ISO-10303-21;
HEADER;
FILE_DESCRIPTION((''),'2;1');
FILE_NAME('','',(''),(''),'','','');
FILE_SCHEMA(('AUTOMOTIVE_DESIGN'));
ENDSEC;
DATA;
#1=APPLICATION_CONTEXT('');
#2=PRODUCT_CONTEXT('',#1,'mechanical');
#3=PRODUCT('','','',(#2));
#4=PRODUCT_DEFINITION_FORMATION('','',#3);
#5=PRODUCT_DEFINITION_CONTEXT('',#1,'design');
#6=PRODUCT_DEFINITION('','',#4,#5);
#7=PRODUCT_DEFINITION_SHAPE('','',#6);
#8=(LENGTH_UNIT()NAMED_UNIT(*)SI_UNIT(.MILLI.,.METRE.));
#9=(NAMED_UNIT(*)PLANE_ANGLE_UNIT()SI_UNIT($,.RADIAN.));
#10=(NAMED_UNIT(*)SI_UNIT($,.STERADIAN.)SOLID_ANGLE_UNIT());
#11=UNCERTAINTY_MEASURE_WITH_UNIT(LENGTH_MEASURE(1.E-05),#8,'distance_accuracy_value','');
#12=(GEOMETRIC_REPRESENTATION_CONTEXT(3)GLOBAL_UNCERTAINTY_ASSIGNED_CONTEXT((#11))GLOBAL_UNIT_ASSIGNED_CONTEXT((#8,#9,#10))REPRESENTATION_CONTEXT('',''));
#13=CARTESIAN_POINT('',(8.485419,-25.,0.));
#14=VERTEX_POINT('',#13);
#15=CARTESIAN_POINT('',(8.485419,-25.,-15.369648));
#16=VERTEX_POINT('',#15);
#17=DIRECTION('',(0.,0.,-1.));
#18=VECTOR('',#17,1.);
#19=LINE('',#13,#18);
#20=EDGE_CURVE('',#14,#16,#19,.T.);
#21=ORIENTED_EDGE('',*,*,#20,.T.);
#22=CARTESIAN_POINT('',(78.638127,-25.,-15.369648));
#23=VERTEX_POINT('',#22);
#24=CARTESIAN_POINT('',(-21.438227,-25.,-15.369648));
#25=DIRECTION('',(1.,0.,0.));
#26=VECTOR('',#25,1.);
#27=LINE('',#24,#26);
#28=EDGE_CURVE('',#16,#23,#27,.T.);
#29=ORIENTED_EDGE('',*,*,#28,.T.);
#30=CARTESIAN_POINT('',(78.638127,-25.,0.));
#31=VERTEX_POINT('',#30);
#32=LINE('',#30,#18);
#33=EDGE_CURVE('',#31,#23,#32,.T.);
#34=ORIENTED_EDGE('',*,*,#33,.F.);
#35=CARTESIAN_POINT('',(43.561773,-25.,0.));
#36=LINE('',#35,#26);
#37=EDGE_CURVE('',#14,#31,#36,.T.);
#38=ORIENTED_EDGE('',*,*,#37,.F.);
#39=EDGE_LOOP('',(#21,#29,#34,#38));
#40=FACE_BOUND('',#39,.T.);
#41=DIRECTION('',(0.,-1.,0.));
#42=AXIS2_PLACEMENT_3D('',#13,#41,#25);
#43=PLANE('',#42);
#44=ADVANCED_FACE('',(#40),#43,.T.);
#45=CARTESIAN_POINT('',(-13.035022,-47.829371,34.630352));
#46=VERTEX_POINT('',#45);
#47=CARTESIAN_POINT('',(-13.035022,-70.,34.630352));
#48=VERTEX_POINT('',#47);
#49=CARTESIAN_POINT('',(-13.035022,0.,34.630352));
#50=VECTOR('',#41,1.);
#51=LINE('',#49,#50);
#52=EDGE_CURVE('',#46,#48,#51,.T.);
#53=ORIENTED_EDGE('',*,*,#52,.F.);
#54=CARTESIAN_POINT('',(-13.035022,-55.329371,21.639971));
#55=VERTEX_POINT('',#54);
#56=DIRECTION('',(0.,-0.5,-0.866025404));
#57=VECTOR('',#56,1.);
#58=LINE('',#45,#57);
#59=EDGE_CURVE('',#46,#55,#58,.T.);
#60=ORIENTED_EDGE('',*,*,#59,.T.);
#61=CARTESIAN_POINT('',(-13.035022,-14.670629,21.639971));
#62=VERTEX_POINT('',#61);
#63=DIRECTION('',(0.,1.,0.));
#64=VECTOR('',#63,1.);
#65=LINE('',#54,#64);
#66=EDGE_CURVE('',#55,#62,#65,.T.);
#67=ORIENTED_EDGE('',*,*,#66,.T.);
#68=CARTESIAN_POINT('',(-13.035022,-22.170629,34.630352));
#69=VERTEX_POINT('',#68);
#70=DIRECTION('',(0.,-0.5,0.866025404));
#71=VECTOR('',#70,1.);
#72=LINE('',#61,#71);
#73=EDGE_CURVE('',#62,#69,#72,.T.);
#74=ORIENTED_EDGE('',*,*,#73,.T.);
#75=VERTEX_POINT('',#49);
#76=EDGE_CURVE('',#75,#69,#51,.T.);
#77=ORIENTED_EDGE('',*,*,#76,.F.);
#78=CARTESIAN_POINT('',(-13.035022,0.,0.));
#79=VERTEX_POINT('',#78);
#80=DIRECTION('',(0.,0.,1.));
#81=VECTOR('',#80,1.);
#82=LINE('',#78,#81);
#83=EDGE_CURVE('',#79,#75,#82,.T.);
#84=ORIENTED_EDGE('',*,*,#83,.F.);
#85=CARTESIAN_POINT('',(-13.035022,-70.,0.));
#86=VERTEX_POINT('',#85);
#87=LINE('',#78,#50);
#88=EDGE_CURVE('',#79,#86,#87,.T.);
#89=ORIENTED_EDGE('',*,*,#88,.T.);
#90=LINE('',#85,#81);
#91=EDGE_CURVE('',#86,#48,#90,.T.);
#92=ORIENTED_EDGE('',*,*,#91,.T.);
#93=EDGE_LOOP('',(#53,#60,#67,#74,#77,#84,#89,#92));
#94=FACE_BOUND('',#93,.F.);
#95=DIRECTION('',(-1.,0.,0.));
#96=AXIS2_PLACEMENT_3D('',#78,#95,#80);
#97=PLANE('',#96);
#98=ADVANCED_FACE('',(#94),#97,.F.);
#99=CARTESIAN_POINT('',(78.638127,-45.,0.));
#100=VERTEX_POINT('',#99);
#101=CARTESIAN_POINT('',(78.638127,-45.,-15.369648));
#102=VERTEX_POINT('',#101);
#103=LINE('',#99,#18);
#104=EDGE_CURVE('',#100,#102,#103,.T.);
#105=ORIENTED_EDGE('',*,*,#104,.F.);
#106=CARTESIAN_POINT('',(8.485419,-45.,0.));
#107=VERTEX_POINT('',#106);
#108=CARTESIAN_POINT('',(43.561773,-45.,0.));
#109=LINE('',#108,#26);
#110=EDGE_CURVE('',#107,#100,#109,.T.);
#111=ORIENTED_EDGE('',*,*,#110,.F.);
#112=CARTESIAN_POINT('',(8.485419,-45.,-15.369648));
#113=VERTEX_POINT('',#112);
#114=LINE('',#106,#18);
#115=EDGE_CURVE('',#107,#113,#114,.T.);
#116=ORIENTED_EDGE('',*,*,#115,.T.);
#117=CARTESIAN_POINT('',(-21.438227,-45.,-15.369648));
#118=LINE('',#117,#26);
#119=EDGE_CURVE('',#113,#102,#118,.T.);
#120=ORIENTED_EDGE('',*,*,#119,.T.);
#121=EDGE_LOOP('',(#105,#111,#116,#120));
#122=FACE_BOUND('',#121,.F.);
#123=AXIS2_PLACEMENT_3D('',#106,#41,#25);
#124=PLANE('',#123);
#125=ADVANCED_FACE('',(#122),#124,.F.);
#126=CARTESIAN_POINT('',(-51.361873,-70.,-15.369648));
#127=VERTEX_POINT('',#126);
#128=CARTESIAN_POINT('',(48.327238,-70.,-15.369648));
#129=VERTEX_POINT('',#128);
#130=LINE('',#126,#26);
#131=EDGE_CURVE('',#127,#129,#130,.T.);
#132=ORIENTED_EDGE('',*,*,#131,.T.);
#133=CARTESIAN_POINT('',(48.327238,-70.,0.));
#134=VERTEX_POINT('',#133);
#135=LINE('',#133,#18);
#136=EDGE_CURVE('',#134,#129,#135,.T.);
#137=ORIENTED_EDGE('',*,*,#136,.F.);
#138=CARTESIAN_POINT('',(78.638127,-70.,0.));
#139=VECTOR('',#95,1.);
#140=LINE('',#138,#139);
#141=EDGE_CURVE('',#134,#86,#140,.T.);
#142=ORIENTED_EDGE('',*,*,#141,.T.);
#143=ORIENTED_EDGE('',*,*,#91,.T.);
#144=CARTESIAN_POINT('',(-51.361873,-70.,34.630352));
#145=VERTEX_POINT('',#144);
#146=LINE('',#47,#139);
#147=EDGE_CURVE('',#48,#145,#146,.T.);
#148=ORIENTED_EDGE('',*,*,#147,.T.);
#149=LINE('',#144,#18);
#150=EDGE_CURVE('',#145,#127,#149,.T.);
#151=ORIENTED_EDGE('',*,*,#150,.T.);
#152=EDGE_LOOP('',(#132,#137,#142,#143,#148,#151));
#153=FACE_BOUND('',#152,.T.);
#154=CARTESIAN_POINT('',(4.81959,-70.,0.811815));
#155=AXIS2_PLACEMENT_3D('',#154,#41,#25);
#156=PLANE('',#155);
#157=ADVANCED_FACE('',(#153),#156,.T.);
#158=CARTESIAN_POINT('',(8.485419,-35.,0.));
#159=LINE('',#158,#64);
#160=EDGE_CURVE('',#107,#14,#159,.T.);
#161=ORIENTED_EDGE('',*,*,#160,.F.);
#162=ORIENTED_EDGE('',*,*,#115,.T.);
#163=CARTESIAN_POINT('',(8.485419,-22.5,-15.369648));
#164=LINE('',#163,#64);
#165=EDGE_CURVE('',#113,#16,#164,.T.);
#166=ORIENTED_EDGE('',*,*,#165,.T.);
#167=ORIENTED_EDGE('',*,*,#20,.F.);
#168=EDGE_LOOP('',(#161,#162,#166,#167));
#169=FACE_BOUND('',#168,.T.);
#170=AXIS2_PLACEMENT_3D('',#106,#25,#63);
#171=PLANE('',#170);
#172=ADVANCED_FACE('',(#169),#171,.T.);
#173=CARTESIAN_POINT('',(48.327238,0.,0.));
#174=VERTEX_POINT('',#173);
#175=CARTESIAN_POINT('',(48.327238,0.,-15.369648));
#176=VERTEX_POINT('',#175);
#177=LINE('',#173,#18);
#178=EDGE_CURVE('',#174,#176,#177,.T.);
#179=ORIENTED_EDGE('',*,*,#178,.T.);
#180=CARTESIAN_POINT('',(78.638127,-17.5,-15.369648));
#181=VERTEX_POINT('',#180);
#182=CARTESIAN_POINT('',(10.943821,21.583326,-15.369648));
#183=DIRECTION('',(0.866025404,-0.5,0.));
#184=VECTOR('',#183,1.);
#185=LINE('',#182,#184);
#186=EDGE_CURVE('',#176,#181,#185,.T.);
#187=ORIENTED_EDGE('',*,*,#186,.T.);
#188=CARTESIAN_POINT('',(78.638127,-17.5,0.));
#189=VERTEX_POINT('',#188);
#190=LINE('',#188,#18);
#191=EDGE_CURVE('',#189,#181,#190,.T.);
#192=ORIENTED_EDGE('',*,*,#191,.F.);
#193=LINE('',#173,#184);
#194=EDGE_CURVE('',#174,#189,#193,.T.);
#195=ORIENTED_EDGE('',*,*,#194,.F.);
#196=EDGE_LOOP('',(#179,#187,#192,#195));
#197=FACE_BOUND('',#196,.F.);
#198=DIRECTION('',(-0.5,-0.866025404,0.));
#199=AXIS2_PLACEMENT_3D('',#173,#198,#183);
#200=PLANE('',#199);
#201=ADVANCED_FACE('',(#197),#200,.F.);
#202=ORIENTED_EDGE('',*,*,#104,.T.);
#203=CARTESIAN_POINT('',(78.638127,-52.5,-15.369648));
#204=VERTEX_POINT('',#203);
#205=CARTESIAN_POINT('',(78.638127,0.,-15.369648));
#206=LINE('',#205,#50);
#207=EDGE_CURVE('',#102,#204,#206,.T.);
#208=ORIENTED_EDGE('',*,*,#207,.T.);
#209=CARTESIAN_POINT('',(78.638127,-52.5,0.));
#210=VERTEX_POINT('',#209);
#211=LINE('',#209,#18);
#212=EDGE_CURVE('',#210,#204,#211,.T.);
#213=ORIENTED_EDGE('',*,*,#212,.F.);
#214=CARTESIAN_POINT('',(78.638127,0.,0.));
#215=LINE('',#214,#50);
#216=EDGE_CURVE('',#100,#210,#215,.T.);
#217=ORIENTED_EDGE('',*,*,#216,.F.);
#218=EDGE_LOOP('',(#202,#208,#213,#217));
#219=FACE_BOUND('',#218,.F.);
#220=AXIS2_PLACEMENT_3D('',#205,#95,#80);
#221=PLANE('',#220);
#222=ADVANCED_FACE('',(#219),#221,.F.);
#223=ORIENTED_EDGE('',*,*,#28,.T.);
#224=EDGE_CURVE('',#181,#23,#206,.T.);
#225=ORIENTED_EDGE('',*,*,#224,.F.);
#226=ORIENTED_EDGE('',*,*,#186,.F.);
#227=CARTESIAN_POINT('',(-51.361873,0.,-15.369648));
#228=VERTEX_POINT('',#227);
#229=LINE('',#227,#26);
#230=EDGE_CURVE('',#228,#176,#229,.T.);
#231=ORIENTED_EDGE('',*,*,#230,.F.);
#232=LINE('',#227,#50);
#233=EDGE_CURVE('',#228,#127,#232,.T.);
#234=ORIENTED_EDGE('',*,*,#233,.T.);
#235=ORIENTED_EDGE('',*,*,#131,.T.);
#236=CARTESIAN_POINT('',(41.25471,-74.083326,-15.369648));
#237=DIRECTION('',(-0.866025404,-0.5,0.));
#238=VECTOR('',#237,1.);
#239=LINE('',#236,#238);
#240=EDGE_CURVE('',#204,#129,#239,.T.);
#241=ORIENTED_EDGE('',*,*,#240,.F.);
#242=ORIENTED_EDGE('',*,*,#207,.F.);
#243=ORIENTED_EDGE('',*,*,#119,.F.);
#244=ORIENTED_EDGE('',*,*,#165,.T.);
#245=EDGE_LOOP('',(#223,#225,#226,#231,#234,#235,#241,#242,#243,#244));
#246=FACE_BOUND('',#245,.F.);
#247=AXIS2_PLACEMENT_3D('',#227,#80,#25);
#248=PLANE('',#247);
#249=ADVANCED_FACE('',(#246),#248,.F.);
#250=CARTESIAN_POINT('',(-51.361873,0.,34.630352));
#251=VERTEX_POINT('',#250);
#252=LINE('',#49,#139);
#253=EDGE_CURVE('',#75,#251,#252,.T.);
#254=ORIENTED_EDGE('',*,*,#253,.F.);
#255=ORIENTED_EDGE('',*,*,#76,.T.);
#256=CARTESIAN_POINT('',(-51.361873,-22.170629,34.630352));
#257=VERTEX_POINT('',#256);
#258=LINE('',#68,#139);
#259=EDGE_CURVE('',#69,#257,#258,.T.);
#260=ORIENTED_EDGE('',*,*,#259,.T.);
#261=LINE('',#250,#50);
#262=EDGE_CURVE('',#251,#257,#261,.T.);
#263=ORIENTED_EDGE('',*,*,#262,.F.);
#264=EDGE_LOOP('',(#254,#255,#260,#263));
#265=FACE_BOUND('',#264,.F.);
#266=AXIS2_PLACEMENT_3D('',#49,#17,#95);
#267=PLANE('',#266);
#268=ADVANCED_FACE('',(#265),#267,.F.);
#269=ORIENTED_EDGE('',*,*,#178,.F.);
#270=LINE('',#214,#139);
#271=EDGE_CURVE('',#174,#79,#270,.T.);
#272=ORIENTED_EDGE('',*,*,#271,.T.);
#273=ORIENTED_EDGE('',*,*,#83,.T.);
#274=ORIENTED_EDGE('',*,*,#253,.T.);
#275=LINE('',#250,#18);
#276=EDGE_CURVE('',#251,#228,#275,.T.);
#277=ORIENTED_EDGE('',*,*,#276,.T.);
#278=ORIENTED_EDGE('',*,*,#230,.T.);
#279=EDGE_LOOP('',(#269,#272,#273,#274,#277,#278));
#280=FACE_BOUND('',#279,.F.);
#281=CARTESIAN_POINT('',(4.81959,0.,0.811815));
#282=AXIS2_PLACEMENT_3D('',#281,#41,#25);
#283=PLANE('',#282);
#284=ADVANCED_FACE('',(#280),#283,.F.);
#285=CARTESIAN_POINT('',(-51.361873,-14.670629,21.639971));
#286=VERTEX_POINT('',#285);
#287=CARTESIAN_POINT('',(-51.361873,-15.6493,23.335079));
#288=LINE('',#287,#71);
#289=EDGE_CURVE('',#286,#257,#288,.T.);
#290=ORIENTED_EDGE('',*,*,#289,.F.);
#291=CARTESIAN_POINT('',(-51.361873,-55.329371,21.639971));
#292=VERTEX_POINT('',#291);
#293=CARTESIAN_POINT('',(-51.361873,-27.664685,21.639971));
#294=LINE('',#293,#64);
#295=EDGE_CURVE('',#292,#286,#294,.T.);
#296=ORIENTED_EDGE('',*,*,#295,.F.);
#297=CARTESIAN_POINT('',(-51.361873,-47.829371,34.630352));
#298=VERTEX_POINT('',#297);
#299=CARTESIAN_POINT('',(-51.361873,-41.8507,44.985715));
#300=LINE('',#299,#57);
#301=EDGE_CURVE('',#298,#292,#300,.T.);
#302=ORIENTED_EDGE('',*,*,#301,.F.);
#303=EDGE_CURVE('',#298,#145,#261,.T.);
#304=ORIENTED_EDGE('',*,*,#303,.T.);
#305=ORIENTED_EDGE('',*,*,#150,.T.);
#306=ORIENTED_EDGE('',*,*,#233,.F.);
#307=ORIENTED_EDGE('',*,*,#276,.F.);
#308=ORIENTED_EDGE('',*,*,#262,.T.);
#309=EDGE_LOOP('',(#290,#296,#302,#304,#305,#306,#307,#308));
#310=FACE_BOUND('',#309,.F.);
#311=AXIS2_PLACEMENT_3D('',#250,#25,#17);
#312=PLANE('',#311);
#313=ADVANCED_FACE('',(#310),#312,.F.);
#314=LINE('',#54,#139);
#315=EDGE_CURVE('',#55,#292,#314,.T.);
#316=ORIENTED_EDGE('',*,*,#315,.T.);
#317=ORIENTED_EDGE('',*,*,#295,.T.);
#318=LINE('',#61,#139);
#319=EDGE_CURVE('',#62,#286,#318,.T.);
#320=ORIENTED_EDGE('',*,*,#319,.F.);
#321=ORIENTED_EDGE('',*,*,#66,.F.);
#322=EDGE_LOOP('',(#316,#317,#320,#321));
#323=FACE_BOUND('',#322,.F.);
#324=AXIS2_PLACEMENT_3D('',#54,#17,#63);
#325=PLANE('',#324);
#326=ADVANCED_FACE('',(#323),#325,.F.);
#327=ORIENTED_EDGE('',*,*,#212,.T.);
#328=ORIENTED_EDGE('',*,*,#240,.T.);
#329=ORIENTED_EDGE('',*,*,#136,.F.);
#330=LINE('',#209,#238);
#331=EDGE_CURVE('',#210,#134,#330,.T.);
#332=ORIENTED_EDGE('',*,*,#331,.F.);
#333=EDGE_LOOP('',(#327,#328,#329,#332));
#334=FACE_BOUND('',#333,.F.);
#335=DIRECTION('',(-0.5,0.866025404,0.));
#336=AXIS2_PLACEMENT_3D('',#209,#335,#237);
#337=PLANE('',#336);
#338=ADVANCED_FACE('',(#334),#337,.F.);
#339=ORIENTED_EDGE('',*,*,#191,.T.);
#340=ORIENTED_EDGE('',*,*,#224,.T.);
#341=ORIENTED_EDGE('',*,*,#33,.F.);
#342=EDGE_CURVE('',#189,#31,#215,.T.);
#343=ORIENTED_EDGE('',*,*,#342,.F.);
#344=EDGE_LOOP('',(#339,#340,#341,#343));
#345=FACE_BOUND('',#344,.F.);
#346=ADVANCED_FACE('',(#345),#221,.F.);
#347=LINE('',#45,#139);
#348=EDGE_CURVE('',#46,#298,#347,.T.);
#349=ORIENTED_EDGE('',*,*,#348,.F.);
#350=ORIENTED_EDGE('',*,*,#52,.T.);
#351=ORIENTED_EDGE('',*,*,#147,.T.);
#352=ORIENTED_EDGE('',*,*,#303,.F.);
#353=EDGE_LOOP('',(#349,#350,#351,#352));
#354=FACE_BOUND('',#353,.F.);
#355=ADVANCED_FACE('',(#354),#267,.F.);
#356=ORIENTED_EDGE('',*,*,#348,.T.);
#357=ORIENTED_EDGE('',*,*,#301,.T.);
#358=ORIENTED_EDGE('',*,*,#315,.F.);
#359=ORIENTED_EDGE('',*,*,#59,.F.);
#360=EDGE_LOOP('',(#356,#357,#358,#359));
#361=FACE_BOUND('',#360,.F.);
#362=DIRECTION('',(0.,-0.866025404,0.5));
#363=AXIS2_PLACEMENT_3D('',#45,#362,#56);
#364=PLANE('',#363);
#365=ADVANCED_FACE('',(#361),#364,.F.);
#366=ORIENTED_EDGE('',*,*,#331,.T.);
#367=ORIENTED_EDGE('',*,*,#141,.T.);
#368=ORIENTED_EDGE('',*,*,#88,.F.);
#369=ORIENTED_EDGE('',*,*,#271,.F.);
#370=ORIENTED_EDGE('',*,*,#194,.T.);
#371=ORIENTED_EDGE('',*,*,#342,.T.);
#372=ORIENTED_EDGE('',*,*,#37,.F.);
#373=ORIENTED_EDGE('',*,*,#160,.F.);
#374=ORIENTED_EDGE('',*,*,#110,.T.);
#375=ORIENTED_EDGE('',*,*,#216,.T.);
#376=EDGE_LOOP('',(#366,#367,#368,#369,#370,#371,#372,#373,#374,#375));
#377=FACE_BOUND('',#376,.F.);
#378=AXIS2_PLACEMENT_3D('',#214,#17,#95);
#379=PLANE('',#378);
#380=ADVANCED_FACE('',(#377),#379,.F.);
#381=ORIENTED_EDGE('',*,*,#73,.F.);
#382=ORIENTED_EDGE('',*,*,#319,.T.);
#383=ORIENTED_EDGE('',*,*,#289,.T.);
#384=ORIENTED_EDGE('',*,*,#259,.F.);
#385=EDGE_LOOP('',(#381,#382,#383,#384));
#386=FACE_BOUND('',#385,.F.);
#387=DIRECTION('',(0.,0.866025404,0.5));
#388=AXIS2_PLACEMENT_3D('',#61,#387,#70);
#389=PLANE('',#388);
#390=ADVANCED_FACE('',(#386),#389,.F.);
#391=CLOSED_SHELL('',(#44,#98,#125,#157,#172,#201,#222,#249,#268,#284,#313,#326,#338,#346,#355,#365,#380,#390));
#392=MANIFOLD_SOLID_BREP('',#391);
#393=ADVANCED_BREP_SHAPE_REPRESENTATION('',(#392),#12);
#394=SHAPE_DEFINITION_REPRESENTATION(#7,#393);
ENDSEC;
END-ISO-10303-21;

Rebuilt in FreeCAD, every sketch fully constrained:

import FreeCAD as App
import Part
import Sketcher
Q = App.Units.Quantity

doc = App.newDocument("Part")
params = doc.addObject("Spreadsheet::Sheet", "Params")
for row, (alias, value) in enumerate([
    ("sketch1_width", "130 mm"),
    ("sketch1_height", "50 mm"),
    ("pad1_length", "70 mm"),
    ("sketch2_length", "15 mm"),
    ("sketch3_height", "20 mm"),
    ("sketch4_length", "35 mm"),
], start=1):
    params.set(f"A{row}", alias)
    params.set(f"B{row}", "=" + value)
    params.setAlias(f"B{row}", alias)

body = doc.addObject("PartDesign::Body", "Body")

# Sketch on XZ plane
sketch1 = doc.addObject("Sketcher::SketchObject", "Sketch")
body.addObject(sketch1)
sketch1.AttachmentSupport = (doc.XZ_Plane, [""])
sketch1.MapMode = "FlatFace"
sketch1.addGeometry([
    Part.LineSegment(App.Vector(-13, 35, 0), App.Vector(-51, 35, 0)),  # 0
    Part.LineSegment(App.Vector(-51, 35, 0), App.Vector(-51, -15, 0)),  # 1
    Part.LineSegment(App.Vector(-51, -15, 0), App.Vector(79, -15, 0)),  # 2
    Part.LineSegment(App.Vector(79, -15, 0), App.Vector(79, 0, 0)),  # 3
    Part.LineSegment(App.Vector(79, 0, 0), App.Vector(-13, 0, 0)),  # 4
    Part.LineSegment(App.Vector(-13, 0, 0), App.Vector(-13, 35, 0)),  # 5
], False)
sketch1.addConstraint([
    Sketcher.Constraint("Coincident", 0, 2, 1, 1),
    Sketcher.Constraint("Coincident", 1, 2, 2, 1),
    Sketcher.Constraint("Coincident", 2, 2, 3, 1),
    Sketcher.Constraint("Coincident", 3, 2, 4, 1),
    Sketcher.Constraint("Coincident", 4, 2, 5, 1),
    Sketcher.Constraint("Coincident", 5, 2, 0, 1),
    Sketcher.Constraint("Horizontal", 0),
    Sketcher.Constraint("Vertical", 1),
    Sketcher.Constraint("Horizontal", 2),
    Sketcher.Constraint("Vertical", 3),
    Sketcher.Constraint("Horizontal", 4),
    Sketcher.Constraint("Vertical", 5),
    Sketcher.Constraint("PointOnObject", 3, 2, -1),
    Sketcher.Constraint("DistanceX", 2, 1, 2, 2, 130.0),
    Sketcher.Constraint("DistanceY", 1, 2, 1, 1, 50.0),
    Sketcher.Constraint("DistanceX", 0, 2, 0, 1, 38.326851),
    Sketcher.Constraint("DistanceY", 3, 1, 3, 2, 15.369648),
    Sketcher.Constraint("DistanceX", 4, 2, -1, 1, 13.035022),
])
sketch1.setExpression("Constraints[13]", "Params.sketch1_width")
sketch1.setExpression("Constraints[14]", "Params.sketch1_height")
pad1 = doc.addObject("PartDesign::Pad", "Pad")
body.addObject(pad1)
pad1.Profile = sketch1
pad1.setExpression("Length", "Params.pad1_length")

# Sketch on YZ plane
sketch2 = doc.addObject("Sketcher::SketchObject", "Sketch001")
body.addObject(sketch2)
sketch2.AttachmentSupport = (doc.YZ_Plane, [""])
sketch2.MapMode = "FlatFace"
sketch2.AttachmentOffset = App.Placement(App.Vector(0, 0, -13.035022), App.Rotation())
sketch2.addGeometry([
    Part.LineSegment(App.Vector(-22, 35, 0), App.Vector(-48, 35, 0)),
    Part.LineSegment(App.Vector(-48, 35, 0), App.Vector(-55, 22, 0)),
    Part.LineSegment(App.Vector(-55, 22, 0), App.Vector(-15, 22, 0)),
    Part.LineSegment(App.Vector(-15, 22, 0), App.Vector(-22, 35, 0)),
], False)
sketch2.addConstraint([
    Sketcher.Constraint("Coincident", 0, 2, 1, 1),
    Sketcher.Constraint("Coincident", 1, 2, 2, 1),
    Sketcher.Constraint("Coincident", 2, 2, 3, 1),
    Sketcher.Constraint("Coincident", 3, 2, 0, 1),
    Sketcher.Constraint("Horizontal", 0),
    Sketcher.Constraint("Horizontal", 2),
    Sketcher.Constraint("Equal", 1, 3),
    Sketcher.Constraint("Angle", 1, Q("-120 deg")),
    Sketcher.Constraint("Distance", 1, 15.0),
    Sketcher.Constraint("DistanceX", 0, 2, 0, 1, 25.658742),
    Sketcher.Constraint("DistanceX", 0, 2, -1, 1, 47.829371),
    Sketcher.Constraint("DistanceY", -1, 1, 0, 2, 34.630352),
])
sketch2.setExpression("Constraints[8]", "Params.sketch2_length")
pocket1 = doc.addObject("PartDesign::Pocket", "Pocket")
body.addObject(pocket1)
pocket1.Profile = sketch2
pocket1.Type = "ThroughAll"

# Sketch on XY plane
sketch3 = doc.addObject("Sketcher::SketchObject", "Sketch002")
body.addObject(sketch3)
sketch3.AttachmentSupport = (doc.XY_Plane, [""])
sketch3.MapMode = "FlatFace"
sketch3.addGeometry([
    Part.LineSegment(App.Vector(8, -25, 0), App.Vector(8, -45, 0)),
    Part.LineSegment(App.Vector(8, -45, 0), App.Vector(79, -45, 0)),
    Part.LineSegment(App.Vector(79, -45, 0), App.Vector(79, -25, 0)),
    Part.LineSegment(App.Vector(79, -25, 0), App.Vector(8, -25, 0)),
], False)
sketch3.addConstraint([
    Sketcher.Constraint("Coincident", 0, 2, 1, 1),
    Sketcher.Constraint("Coincident", 1, 2, 2, 1),
    Sketcher.Constraint("Coincident", 2, 2, 3, 1),
    Sketcher.Constraint("Coincident", 3, 2, 0, 1),
    Sketcher.Constraint("Vertical", 0),
    Sketcher.Constraint("Horizontal", 1),
    Sketcher.Constraint("Vertical", 2),
    Sketcher.Constraint("Horizontal", 3),
    Sketcher.Constraint("DistanceY", 0, 2, 0, 1, 20.0),
    Sketcher.Constraint("DistanceY", 0, 2, -1, 1, 45.0),
    Sketcher.Constraint("DistanceX", 1, 1, 1, 2, 70.152708),
    Sketcher.Constraint("DistanceX", -1, 1, 0, 2, 8.485419),
])
sketch3.setExpression("Constraints[8]", "Params.sketch3_height")
pocket2 = doc.addObject("PartDesign::Pocket", "Pocket001")
body.addObject(pocket2)
pocket2.Profile = sketch3
pocket2.Type = "ThroughAll"

# Sketch on XY plane
sketch4 = doc.addObject("Sketcher::SketchObject", "Sketch003")
body.addObject(sketch4)
sketch4.AttachmentSupport = (doc.XY_Plane, [""])
sketch4.MapMode = "FlatFace"
sketch4.addGeometry([
    Part.LineSegment(App.Vector(79, -52, 0), App.Vector(48, -70, 0)),  # 0
    Part.LineSegment(App.Vector(48, -70, 0), App.Vector(79, -70, 0)),  # 1
    Part.LineSegment(App.Vector(79, -70, 0), App.Vector(79, -52, 0)),  # 2
    Part.LineSegment(App.Vector(48, 0, 0), App.Vector(79, -18, 0)),  # 3
    Part.LineSegment(App.Vector(79, -18, 0), App.Vector(79, 0, 0)),  # 4
    Part.LineSegment(App.Vector(79, 0, 0), App.Vector(48, 0, 0)),  # 5
], False)
sketch4.addConstraint([
    Sketcher.Constraint("Coincident", 0, 2, 1, 1),
    Sketcher.Constraint("Coincident", 1, 2, 2, 1),
    Sketcher.Constraint("Coincident", 2, 2, 0, 1),
    Sketcher.Constraint("Coincident", 3, 2, 4, 1),
    Sketcher.Constraint("Coincident", 4, 2, 5, 1),
    Sketcher.Constraint("Coincident", 5, 2, 3, 1),
    Sketcher.Constraint("Horizontal", 1),
    Sketcher.Constraint("Vertical", 2),
    Sketcher.Constraint("Vertical", 4),
    Sketcher.Constraint("Horizontal", 5),
    Sketcher.Constraint("PointOnObject", 4, 2, -1),
    Sketcher.Constraint("Vertical", 2, 2, 3, 2),
    Sketcher.Constraint("Vertical", 0, 2, 5, 2),
    Sketcher.Constraint("Equal", 2, 4),
    Sketcher.Constraint("Angle", 0, Q("-150 deg")),
    Sketcher.Constraint("Distance", 0, 35.0),
    Sketcher.Constraint("DistanceY", 0, 2, -1, 1, 70.0),
    Sketcher.Constraint("DistanceX", -1, 1, 0, 2, 48.327238),
])
sketch4.setExpression("Constraints[15]", "Params.sketch4_length")
pocket3 = doc.addObject("PartDesign::Pocket", "Pocket002")
body.addObject(pocket3)
pocket3.Profile = sketch4
pocket3.Type = "ThroughAll"

doc.recompute()
